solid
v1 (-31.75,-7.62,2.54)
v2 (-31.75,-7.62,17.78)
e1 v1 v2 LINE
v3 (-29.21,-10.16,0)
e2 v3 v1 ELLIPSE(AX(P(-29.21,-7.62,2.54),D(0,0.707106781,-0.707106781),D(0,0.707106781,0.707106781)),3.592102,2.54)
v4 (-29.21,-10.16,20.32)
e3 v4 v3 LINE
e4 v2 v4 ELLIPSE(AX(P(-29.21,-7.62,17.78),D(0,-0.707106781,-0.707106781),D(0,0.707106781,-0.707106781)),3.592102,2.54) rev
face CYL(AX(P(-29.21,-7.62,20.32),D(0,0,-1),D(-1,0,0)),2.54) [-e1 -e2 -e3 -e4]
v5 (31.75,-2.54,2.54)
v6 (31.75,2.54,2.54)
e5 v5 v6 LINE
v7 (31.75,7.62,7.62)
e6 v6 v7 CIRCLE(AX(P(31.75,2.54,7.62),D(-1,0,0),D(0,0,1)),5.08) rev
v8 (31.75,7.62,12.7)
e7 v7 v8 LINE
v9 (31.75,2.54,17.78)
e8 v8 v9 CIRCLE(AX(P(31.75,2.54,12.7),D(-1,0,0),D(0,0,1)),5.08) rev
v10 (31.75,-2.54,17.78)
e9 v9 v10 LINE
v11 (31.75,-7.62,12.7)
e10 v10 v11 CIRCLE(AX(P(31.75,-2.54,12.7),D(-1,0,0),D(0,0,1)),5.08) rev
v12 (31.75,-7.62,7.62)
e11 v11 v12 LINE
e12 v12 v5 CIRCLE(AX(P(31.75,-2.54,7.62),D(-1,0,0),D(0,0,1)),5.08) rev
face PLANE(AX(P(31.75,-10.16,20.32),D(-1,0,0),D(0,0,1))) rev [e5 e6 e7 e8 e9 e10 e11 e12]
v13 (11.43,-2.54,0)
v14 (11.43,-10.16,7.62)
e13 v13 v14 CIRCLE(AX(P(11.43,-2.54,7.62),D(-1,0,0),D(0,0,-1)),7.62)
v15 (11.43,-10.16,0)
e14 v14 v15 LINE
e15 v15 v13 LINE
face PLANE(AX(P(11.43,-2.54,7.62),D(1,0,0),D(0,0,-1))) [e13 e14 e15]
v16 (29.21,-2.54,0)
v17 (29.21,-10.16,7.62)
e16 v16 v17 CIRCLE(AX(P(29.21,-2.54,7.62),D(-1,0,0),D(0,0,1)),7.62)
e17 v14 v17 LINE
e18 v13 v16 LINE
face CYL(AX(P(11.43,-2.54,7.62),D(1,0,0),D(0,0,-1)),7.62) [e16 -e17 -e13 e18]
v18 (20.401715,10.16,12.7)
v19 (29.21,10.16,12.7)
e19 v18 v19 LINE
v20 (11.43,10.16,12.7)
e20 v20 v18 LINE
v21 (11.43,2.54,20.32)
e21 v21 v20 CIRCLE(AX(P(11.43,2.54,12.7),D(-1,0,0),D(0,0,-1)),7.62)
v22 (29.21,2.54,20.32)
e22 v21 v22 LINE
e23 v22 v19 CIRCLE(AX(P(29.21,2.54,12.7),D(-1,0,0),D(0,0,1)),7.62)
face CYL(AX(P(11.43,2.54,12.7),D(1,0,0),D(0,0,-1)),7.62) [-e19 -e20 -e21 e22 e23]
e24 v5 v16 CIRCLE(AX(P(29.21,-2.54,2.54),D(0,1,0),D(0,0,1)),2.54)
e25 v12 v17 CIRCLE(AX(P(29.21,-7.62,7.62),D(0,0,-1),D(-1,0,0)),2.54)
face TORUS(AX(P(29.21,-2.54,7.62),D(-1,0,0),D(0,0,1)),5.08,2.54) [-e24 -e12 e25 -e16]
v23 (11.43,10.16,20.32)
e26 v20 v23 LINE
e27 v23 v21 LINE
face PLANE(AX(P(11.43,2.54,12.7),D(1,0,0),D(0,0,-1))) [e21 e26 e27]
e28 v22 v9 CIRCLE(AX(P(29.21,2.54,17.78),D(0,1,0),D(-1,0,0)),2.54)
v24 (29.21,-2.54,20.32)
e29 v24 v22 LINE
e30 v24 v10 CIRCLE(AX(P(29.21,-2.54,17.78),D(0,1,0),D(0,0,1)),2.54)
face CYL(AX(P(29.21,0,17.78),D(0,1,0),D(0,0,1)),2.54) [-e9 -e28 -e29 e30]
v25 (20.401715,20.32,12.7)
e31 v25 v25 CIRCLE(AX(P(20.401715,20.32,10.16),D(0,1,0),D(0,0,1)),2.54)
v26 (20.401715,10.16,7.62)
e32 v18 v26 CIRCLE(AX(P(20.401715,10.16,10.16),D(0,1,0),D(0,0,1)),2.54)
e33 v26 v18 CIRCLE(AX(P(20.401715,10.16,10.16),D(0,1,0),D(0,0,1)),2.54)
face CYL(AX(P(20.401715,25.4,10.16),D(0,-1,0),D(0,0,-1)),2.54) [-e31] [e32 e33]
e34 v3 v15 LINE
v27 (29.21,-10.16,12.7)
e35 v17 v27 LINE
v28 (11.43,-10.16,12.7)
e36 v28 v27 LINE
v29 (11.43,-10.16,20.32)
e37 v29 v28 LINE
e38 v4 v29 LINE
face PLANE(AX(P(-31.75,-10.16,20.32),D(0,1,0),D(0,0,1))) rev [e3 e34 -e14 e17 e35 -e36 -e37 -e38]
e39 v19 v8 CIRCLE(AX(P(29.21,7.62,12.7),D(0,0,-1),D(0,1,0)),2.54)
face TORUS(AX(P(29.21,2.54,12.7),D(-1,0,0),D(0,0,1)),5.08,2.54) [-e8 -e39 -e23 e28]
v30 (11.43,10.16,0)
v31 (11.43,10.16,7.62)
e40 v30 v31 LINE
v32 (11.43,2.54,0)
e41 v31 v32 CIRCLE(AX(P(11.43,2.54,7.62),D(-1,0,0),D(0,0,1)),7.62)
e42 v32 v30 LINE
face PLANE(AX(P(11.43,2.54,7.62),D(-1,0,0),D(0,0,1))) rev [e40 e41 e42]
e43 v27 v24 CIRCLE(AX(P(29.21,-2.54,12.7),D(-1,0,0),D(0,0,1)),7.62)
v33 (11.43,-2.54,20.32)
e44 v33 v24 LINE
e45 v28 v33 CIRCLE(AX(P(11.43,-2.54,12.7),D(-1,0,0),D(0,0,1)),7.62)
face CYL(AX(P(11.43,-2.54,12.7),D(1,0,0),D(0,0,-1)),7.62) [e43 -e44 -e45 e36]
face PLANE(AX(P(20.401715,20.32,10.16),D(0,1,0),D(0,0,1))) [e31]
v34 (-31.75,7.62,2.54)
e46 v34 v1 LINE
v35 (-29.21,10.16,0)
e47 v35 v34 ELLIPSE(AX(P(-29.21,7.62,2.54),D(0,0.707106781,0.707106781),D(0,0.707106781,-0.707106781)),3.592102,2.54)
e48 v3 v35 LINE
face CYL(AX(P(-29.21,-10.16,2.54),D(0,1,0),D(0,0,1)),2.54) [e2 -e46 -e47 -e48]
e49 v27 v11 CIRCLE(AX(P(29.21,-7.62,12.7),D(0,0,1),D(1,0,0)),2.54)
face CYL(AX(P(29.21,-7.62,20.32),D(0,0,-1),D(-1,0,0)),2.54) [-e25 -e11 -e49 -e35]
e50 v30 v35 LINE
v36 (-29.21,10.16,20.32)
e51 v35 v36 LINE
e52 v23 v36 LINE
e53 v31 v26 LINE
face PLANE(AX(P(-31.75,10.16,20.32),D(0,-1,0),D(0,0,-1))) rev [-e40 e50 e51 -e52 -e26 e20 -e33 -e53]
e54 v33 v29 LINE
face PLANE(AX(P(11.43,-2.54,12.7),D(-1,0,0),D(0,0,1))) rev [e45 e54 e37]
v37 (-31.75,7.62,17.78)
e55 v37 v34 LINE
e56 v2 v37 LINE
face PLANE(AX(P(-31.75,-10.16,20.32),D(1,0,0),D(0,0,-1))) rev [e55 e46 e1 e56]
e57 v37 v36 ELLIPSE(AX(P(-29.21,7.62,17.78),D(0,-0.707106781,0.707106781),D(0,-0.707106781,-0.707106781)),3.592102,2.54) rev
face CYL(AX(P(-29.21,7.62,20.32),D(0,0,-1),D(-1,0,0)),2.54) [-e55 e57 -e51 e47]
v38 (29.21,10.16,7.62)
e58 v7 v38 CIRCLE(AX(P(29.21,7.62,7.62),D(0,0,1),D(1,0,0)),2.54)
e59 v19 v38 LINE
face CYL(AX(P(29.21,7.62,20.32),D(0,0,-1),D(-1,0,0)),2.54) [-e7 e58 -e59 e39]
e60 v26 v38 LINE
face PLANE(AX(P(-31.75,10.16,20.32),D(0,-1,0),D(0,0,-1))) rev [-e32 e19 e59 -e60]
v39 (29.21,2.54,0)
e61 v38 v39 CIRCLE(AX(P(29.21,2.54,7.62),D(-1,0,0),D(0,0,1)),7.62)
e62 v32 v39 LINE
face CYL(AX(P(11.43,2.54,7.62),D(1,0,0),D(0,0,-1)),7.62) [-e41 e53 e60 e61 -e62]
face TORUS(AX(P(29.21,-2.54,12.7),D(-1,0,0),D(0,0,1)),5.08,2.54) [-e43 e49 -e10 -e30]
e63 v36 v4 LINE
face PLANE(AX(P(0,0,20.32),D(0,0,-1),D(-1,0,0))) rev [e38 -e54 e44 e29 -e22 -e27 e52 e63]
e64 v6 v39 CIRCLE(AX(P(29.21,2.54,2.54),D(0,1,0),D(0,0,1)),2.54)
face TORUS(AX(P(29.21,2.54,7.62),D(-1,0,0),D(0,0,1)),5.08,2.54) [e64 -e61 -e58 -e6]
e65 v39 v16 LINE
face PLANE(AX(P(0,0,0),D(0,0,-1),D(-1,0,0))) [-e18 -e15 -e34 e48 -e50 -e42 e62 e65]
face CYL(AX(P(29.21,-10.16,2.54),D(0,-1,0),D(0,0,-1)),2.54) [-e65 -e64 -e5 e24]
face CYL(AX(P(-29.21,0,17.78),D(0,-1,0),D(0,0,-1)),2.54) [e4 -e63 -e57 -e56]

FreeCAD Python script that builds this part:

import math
import FreeCAD as App
import Part
import Sketcher
Q = App.Units.Quantity


def edges_at(feature, points):
    """Names of the edges that pass closest to the given points."""
    edges = feature.Shape.Edges
    near = lambda p: min(range(len(edges)), key=lambda i: edges[i].distToShape(Part.Vertex(*p))[0])
    return sorted({f"Edge{near(p) + 1}" for p in points})

doc = App.newDocument("Part")
params = doc.addObject("Spreadsheet::Sheet", "Params")
for row, (alias, value) in enumerate([
    ("sketch1_width", "2.5 in"),
    ("sketch1_height", "0.8 in"),
    ("pad1_length", "0.8 in"),
    ("sketch2_radius", "0.3 in"),
    ("pocket1_length", "0.8 in"),
    ("fillet_radius", "0.1 in"),
    ("sketch3_diameter", "0.2 in"),
    ("pad2_length", "0.6 in"),
    ("fillet2_radius", "0.1 in"),
    ("sketch4_diameter", "0.2 in"),
    ("pocket2_length", "0.2 in"),
], start=1):
    params.set(f"A{row}", alias)
    params.set(f"B{row}", "=" + value)
    params.setAlias(f"B{row}", alias)

body = doc.addObject("PartDesign::Body", "Body")

# Sketch on XY plane
sketch1 = body.newObject("Sketcher::SketchObject", "Sketch")
sketch1.AttachmentSupport = (doc.getObject("XY_Plane"), [""])
sketch1.MapMode = "FlatFace"
sketch1.addGeometry([
    Part.LineSegment(App.Vector(-32, 10, 0), App.Vector(-32, -10, 0)),
    Part.LineSegment(App.Vector(-32, -10, 0), App.Vector(32, -10, 0)),
    Part.LineSegment(App.Vector(32, -10, 0), App.Vector(32, 10, 0)),
    Part.LineSegment(App.Vector(32, 10, 0), App.Vector(-32, 10, 0)),
], False)
sketch1.addConstraint([
    Sketcher.Constraint("Coincident", 0, 2, 1, 1),
    Sketcher.Constraint("Coincident", 1, 2, 2, 1),
    Sketcher.Constraint("Coincident", 2, 2, 3, 1),
    Sketcher.Constraint("Coincident", 3, 2, 0, 1),
    Sketcher.Constraint("Vertical", 0),
    Sketcher.Constraint("Horizontal", 1),
    Sketcher.Constraint("Vertical", 2),
    Sketcher.Constraint("Horizontal", 3),
    Sketcher.Constraint("Symmetric", 0, 2, 2, 2, -1, 1),
    Sketcher.Constraint("DistanceX", 1, 1, 1, 2, Q("2.5 in")),
    Sketcher.Constraint("DistanceY", 0, 2, 0, 1, Q("0.8 in")),
])
sketch1.setExpression("Constraints[9]", "Params.sketch1_width")
sketch1.setExpression("Constraints[10]", "Params.sketch1_height")
pad1 = body.newObject("PartDesign::Pad", "Pad")
pad1.Profile = sketch1
pad1.setExpression("Length", "Params.pad1_length")

# Sketch on YZ plane
sketch2 = body.newObject("Sketcher::SketchObject", "Sketch001")
sketch2.AttachmentSupport = (doc.getObject("YZ_Plane"), [""])
sketch2.MapMode = "FlatFace"
sketch2.AttachmentOffset = App.Placement(App.Vector(0, 0, 1.25 * 25.4), App.Rotation())
sketch2.addGeometry([
    Part.LineSegment(App.Vector(10, 20, 0), App.Vector(3, 20, 0)),  # 0
    Part.ArcOfCircle(Part.Circle(App.Vector(3, 13, 0), App.Vector(0, 0, 1), 8), math.radians(0), math.radians(90)),  # 1
    Part.LineSegment(App.Vector(10, 13, 0), App.Vector(10, 20, 0)),  # 2
    Part.LineSegment(App.Vector(10, 0, 0), App.Vector(10, 8, 0)),  # 3
    Part.ArcOfCircle(Part.Circle(App.Vector(3, 8, 0), App.Vector(0, 0, 1), 8), math.radians(-90), math.radians(0)),  # 4
    Part.LineSegment(App.Vector(3, 0, 0), App.Vector(10, 0, 0)),  # 5
    Part.LineSegment(App.Vector(-10, 8, 0), App.Vector(-10, 0, 0)),  # 6
    Part.LineSegment(App.Vector(-10, 0, 0), App.Vector(-3, 0, 0)),  # 7
    Part.ArcOfCircle(Part.Circle(App.Vector(-3, 8, 0), App.Vector(0, 0, 1), 8), math.radians(180), math.radians(270)),  # 8
    Part.LineSegment(App.Vector(-10, 20, 0), App.Vector(-10, 13, 0)),  # 9
    Part.ArcOfCircle(Part.Circle(App.Vector(-3, 13, 0), App.Vector(0, 0, 1), 8), math.radians(90), math.radians(180)),  # 10
    Part.LineSegment(App.Vector(-3, 20, 0), App.Vector(-10, 20, 0)),  # 11
], False)
sketch2.addConstraint([
    Sketcher.Constraint("Tangent", 0, 2, 1, 2),
    Sketcher.Constraint("Tangent", 1, 1, 2, 1),
    Sketcher.Constraint("Coincident", 2, 2, 0, 1),
    Sketcher.Constraint("Tangent", 3, 2, 4, 2),
    Sketcher.Constraint("Tangent", 4, 1, 5, 1),
    Sketcher.Constraint("Coincident", 5, 2, 3, 1),
    Sketcher.Constraint("Coincident", 6, 2, 7, 1),
    Sketcher.Constraint("Tangent", 7, 2, 8, 2),
    Sketcher.Constraint("Tangent", 8, 1, 6, 1),
    Sketcher.Constraint("Tangent", 9, 2, 10, 2),
    Sketcher.Constraint("Tangent", 10, 1, 11, 1),
    Sketcher.Constraint("Coincident", 11, 2, 9, 1),
    Sketcher.Constraint("Horizontal", 0),
    Sketcher.Constraint("Vertical", 2),
    Sketcher.Constraint("Vertical", 3),
    Sketcher.Constraint("Horizontal", 5),
    Sketcher.Constraint("Vertical", 6),
    Sketcher.Constraint("Horizontal", 7),
    Sketcher.Constraint("Vertical", 9),
    Sketcher.Constraint("Horizontal", 11),
    Sketcher.Constraint("Equal", 1, 4),
    Sketcher.Constraint("Equal", 4, 8),
    Sketcher.Constraint("Equal", 8, 10),
    Sketcher.Constraint("Symmetric", 5, 2, 6, 2, -1, 1),
    Sketcher.Constraint("Symmetric", 1, 3, 10, 3, -2),
    Sketcher.Constraint("PointOnObject", 4, 1, -1),
    Sketcher.Constraint("Vertical", 1, 3, 4, 3),
    Sketcher.Constraint("Radius", 1, Q("0.3 in")),
    Sketcher.Constraint("DistanceX", -1, 1, 1, 3, Q("0.1 in")),
    Sketcher.Constraint("DistanceY", -1, 1, 1, 3, Q("0.5 in")),
])
sketch2.setExpression("Constraints[27]", "Params.sketch2_radius")
pocket1 = body.newObject("PartDesign::Pocket", "Pocket")
pocket1.Profile = sketch2
pocket1.setExpression("Length", "Params.pocket1_length")
doc.recompute()

fillet = body.newObject("PartDesign::Fillet", "Fillet")
fillet.Base = (pocket1, edges_at(pocket1, [
    (31.75, 0, 0),
    (31.75, 0, 20.32),
    (31.75, -10.16, 10.16),
    (31.75, 10.16, 10.16),
    (31.75, -7.928, 18.088),
    (31.75, -7.928, 2.232),
    (31.75, 7.928, 2.232),
    (31.75, 7.928, 18.088),
]))
fillet.setExpression("Radius", "Params.fillet_radius")

# Sketch on XZ plane
sketch3 = body.newObject("Sketcher::SketchObject", "Sketch002")
sketch3.AttachmentSupport = (doc.getObject("XZ_Plane"), [""])
sketch3.MapMode = "FlatFace"
sketch3.AttachmentOffset = App.Placement(App.Vector(0, 0, -0.4 * 25.4), App.Rotation())
sketch3.addGeometry(Part.Circle(App.Vector(20.4, 10.2, 0), App.Vector(0, 0, 1), 2.5), False)
sketch3.addConstraint([
    Sketcher.Constraint("Diameter", 0, Q("0.2 in")),
    Sketcher.Constraint("DistanceY", -1, 1, 0, 3, Q("0.4 in")),
    Sketcher.Constraint("DistanceX", -1, 1, 0, 3, 20.401715),
])
sketch3.setExpression("Constraints[0]", "Params.sketch3_diameter")
pad2 = body.newObject("PartDesign::Pad", "Pad001")
pad2.Profile = sketch3
pad2.setExpression("Length", "Params.pad2_length")
pad2.Reversed = True
doc.recompute()

fillet2 = body.newObject("PartDesign::Fillet", "Fillet001")
fillet2.Base = (pad2, edges_at(pad2, [
    (-31.75, 0, 20.32),
    (-31.75, 0, 0),
    (-31.75, -10.16, 10.16),
    (-31.75, 10.16, 10.16),
]))
fillet2.setExpression("Radius", "Params.fillet2_radius")

# Sketch on XZ plane
sketch4 = body.newObject("Sketcher::SketchObject", "Sketch003")
sketch4.AttachmentSupport = (doc.getObject("XZ_Plane"), [""])
sketch4.MapMode = "FlatFace"
sketch4.AttachmentOffset = App.Placement(App.Vector(0, 0, -0.8 * 25.4), App.Rotation())
sketch4.addGeometry(Part.Circle(App.Vector(20.4, 10.2, 0), App.Vector(0, 0, 1), 2.5), False)
sketch4.addConstraint([
    Sketcher.Constraint("Diameter", 0, Q("0.2 in")),
    Sketcher.Constraint("DistanceY", -1, 1, 0, 3, Q("0.4 in")),
    Sketcher.Constraint("DistanceX", -1, 1, 0, 3, 20.401715),
])
sketch4.setExpression("Constraints[0]", "Params.sketch4_diameter")
pocket2 = body.newObject("PartDesign::Pocket", "Pocket001")
pocket2.Profile = sketch4
pocket2.setExpression("Length", "Params.pocket2_length")

doc.recompute()
